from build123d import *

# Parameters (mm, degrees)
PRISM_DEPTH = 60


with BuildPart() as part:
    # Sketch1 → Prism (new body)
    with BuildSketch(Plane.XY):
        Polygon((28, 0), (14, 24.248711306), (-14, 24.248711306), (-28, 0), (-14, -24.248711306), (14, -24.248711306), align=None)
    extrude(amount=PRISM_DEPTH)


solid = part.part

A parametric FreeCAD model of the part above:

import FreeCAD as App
import Part
import Sketcher
Q = App.Units.Quantity

doc = App.newDocument("Part")
body = doc.addObject("PartDesign::Body", "Body")

# Sketch on XY plane
sketch1 = body.newObject("Sketcher::SketchObject", "Sketch")
sketch1.AttachmentSupport = (doc.getObject("XY_Plane"), [""])
sketch1.MapMode = "FlatFace"
sketch1.addGeometry(Part.LineSegment(App.Vector(28, 0, 0), App.Vector(14, 24, 0)), False)
sketch1.addGeometry(Part.LineSegment(App.Vector(14, 24, 0), App.Vector(-14, 24, 0)), False)
sketch1.addGeometry(Part.LineSegment(App.Vector(-14, 24, 0), App.Vector(-28, 0, 0)), False)
sketch1.addGeometry(Part.LineSegment(App.Vector(-28, 0, 0), App.Vector(-14, -24, 0)), False)
sketch1.addGeometry(Part.LineSegment(App.Vector(-14, -24, 0), App.Vector(14, -24, 0)), False)
sketch1.addGeometry(Part.LineSegment(App.Vector(14, -24, 0), App.Vector(28, 0, 0)), False)
sketch1.addConstraint(Sketcher.Constraint("Coincident", 0, 2, 1, 1))
sketch1.addConstraint(Sketcher.Constraint("Coincident", 1, 2, 2, 1))
sketch1.addConstraint(Sketcher.Constraint("Coincident", 2, 2, 3, 1))
sketch1.addConstraint(Sketcher.Constraint("Coincident", 3, 2, 4, 1))
sketch1.addConstraint(Sketcher.Constraint("Coincident", 4, 2, 5, 1))
sketch1.addConstraint(Sketcher.Constraint("Coincident", 5, 2, 0, 1))
sketch1.addConstraint(Sketcher.Constraint("Horizontal", 1))
sketch1.addConstraint(Sketcher.Constraint("Horizontal", 4))
sketch1.addConstraint(Sketcher.Constraint("Symmetric", 0, 2, 3, 2, -1, 1))
sketch1.addConstraint(Sketcher.Constraint("Symmetric", 2, 2, 5, 2, -1, 1))
sketch1.addConstraint(Sketcher.Constraint("PointOnObject", 2, 2, -1))
sketch1.addConstraint(Sketcher.Constraint("Parallel", 2, 5))
sketch1.addConstraint(Sketcher.Constraint("Vertical", 1, 2, 3, 2))
sketch1.addConstraint(Sketcher.Constraint("DistanceX", 1, 2, 1, 1, 28.0))
sketch1.addConstraint(Sketcher.Constraint("Angle", 0, Q("120 deg")))
sketch1.addConstraint(Sketcher.Constraint("Distance", 0, 28.0))
pad1 = body.newObject("PartDesign::Pad", "Pad")
pad1.Profile = sketch1
pad1.Length = 60

doc.recompute()
